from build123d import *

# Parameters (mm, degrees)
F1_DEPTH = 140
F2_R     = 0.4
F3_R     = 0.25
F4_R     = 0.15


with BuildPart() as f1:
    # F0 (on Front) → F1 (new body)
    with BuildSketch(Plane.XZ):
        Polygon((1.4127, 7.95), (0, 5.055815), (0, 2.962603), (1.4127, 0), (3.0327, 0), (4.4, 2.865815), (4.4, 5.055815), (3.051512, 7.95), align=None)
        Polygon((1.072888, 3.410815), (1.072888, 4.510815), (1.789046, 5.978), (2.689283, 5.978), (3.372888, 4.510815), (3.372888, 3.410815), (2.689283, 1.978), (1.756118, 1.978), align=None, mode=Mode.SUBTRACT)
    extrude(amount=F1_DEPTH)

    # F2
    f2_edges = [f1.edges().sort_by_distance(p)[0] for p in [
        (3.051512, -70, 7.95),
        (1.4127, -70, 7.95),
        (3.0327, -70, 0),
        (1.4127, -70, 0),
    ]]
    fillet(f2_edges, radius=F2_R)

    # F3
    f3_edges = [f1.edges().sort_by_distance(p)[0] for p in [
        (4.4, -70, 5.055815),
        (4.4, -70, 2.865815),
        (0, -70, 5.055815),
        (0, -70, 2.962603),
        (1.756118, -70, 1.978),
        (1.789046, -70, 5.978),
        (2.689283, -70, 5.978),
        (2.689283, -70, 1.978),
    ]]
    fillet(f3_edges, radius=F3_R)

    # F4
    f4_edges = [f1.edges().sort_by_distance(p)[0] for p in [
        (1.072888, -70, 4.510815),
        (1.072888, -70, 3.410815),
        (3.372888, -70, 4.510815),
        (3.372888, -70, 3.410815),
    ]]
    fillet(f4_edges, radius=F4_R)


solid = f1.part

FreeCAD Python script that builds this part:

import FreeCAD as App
import Part
import Sketcher

V = App.Vector
Q = App.Units.Quantity


def edges_at(feature, points):
    """Names of the edges that pass closest to the given points."""
    edges = feature.Shape.Edges
    near = lambda p: min(range(len(edges)), key=lambda i: edges[i].distToShape(Part.Vertex(*p))[0])
    return sorted({f"Edge{near(p) + 1}" for p in points})


def add_polygon(sketch, points):
    """Adds a closed chain of lines whose ends are joined by coincident constraints."""
    first, n = sketch.GeometryCount, len(points)
    for a, b in zip(points, points[1:] + points[:1]):
        sketch.addGeometry(Part.LineSegment(App.Vector(*a, 0), App.Vector(*b, 0)), False)
    for i in range(n):
        sketch.addConstraint(Sketcher.Constraint("Coincident", first + i, 2, first + (i + 1) % n, 1))

doc = App.newDocument("Part")
params = doc.addObject("Spreadsheet::Sheet", "Params")
for row, (alias, value) in enumerate([
    ("sketch1_height", "1.1 mm"),
    ("sketch1_width", "1.62 mm"),
    ("sketch1_height2", "2.19 mm"),
    ("pad1_length", "140 mm"),
    ("fillet_radius", "0.4 mm"),
    ("fillet2_radius", "0.25 mm"),
    ("fillet3_radius", "0.15 mm"),
], start=1):
    params.set(f"A{row}", alias)
    params.set(f"B{row}", "=" + value)
    params.setAlias(f"B{row}", alias)

body = doc.addObject("PartDesign::Body", "Body")

# Sketch on XZ plane
sketch1 = doc.addObject("Sketcher::SketchObject", "Sketch")
body.addObject(sketch1)
sketch1.AttachmentSupport = (doc.XZ_Plane, [""])
sketch1.MapMode = "FlatFace"
add_polygon(sketch1, [(1.4, 8), (0, 5.1), (0, 3), (1.4, 0), (3, 0), (4.4, 2.9), (4.4, 5.1), (3.1, 8)])  # lines 0-7
add_polygon(sketch1, [(1.8, 2), (1.1, 3.4), (1.1, 4.5), (1.8, 6), (2.7, 6), (3.4, 4.5), (3.4, 3.4), (2.7, 2)])  # lines 8-15
sketch1.addConstraint([
    Sketcher.Constraint("Vertical", 1),
    Sketcher.Constraint("Horizontal", 3),
    Sketcher.Constraint("Vertical", 5),
    Sketcher.Constraint("Horizontal", 7),
    Sketcher.Constraint("Vertical", 9),
    Sketcher.Constraint("Horizontal", 11),
    Sketcher.Constraint("Vertical", 13),
    Sketcher.Constraint("Horizontal", 15),
    Sketcher.Constraint("PointOnObject", 0, 2, -2),
    Sketcher.Constraint("PointOnObject", 2, 2, -1),
    Sketcher.Constraint("Parallel", 2, 8),
    Sketcher.Constraint("Parallel", 0, 10),
    Sketcher.Constraint("Parallel", 6, 12),
    Sketcher.Constraint("Parallel", 4, 14),
    Sketcher.Constraint("Horizontal", 0, 2, 5, 2),
    Sketcher.Constraint("Horizontal", 9, 2, 12, 2),
    Sketcher.Constraint("Horizontal", 8, 2, 13, 2),
    Sketcher.Constraint("Vertical", 2, 2, 7, 2),
    Sketcher.Constraint("Vertical", 11, 2, 14, 2),
    Sketcher.Constraint("DistanceY", 9, 1, 9, 2, Q("1.1 mm")),
    Sketcher.Constraint("DistanceX", 3, 1, 3, 2, Q("1.62 mm")),
    Sketcher.Constraint("DistanceY", 5, 1, 5, 2, Q("2.19 mm")),
    Sketcher.Constraint("DistanceX", -1, 1, 4, 2, Q("4.4 mm")),
    Sketcher.Constraint("DistanceX", 9, 2, 12, 2, Q("2.3 mm")),
    Sketcher.Constraint("DistanceY", -1, 1, 6, 2, Q("7.95 mm")),
    Sketcher.Constraint("DistanceY", -1, 1, 10, 2, Q("5.978 mm")),
    Sketcher.Constraint("DistanceY", -1, 1, 14, 2, Q("1.978 mm")),
    Sketcher.Constraint("DistanceY", 8, 2, 0, 2, Q("1.645 mm")),
    Sketcher.Constraint("DistanceX", 7, 2, 7, 1, Q("1.638812 mm")),
    Sketcher.Constraint("DistanceY", 1, 2, 1, 1, Q("2.093212 mm")),
    Sketcher.Constraint("DistanceX", -1, 1, 2, 2, Q("1.4127 mm")),
    Sketcher.Constraint("DistanceX", -1, 1, 8, 2, Q("1.072888 mm")),
])
sketch1.setExpression("Constraints[35]", "Params.sketch1_height")
sketch1.setExpression("Constraints[36]", "Params.sketch1_width")
sketch1.setExpression("Constraints[37]", "Params.sketch1_height2")
pad1 = doc.addObject("PartDesign::Pad", "Pad")
body.addObject(pad1)
pad1.Profile = sketch1
pad1.setExpression("Length", "Params.pad1_length")
doc.recompute()

fillet = doc.addObject("PartDesign::Fillet", "Fillet")
body.addObject(fillet)
fillet.Base = (pad1, edges_at(pad1, [
    (3.052, -70, 7.95),
    (1.413, -70, 7.95),
    (3.033, -70, 0),
    (1.413, -70, 0),
]))
fillet.setExpression("Radius", "Params.fillet_radius")
doc.recompute()

fillet2 = doc.addObject("PartDesign::Fillet", "Fillet001")
body.addObject(fillet2)
fillet2.Base = (fillet, edges_at(fillet, [
    (4.4, -70, 5.056),
    (4.4, -70, 2.866),
    (0, -70, 5.056),
    (0, -70, 2.963),
    (1.756, -70, 1.978),
    (1.789, -70, 5.978),
    (2.689, -70, 5.978),
    (2.689, -70, 1.978),
]))
fillet2.setExpression("Radius", "Params.fillet2_radius")
doc.recompute()

fillet3 = doc.addObject("PartDesign::Fillet", "Fillet002")
body.addObject(fillet3)
fillet3.Base = (fillet2, edges_at(fillet2, [
    (1.073, -70, 4.511),
    (1.073, -70, 3.411),
    (3.373, -70, 4.511),
    (3.373, -70, 3.411),
]))
fillet3.setExpression("Radius", "Params.fillet3_radius")

doc.recompute()
